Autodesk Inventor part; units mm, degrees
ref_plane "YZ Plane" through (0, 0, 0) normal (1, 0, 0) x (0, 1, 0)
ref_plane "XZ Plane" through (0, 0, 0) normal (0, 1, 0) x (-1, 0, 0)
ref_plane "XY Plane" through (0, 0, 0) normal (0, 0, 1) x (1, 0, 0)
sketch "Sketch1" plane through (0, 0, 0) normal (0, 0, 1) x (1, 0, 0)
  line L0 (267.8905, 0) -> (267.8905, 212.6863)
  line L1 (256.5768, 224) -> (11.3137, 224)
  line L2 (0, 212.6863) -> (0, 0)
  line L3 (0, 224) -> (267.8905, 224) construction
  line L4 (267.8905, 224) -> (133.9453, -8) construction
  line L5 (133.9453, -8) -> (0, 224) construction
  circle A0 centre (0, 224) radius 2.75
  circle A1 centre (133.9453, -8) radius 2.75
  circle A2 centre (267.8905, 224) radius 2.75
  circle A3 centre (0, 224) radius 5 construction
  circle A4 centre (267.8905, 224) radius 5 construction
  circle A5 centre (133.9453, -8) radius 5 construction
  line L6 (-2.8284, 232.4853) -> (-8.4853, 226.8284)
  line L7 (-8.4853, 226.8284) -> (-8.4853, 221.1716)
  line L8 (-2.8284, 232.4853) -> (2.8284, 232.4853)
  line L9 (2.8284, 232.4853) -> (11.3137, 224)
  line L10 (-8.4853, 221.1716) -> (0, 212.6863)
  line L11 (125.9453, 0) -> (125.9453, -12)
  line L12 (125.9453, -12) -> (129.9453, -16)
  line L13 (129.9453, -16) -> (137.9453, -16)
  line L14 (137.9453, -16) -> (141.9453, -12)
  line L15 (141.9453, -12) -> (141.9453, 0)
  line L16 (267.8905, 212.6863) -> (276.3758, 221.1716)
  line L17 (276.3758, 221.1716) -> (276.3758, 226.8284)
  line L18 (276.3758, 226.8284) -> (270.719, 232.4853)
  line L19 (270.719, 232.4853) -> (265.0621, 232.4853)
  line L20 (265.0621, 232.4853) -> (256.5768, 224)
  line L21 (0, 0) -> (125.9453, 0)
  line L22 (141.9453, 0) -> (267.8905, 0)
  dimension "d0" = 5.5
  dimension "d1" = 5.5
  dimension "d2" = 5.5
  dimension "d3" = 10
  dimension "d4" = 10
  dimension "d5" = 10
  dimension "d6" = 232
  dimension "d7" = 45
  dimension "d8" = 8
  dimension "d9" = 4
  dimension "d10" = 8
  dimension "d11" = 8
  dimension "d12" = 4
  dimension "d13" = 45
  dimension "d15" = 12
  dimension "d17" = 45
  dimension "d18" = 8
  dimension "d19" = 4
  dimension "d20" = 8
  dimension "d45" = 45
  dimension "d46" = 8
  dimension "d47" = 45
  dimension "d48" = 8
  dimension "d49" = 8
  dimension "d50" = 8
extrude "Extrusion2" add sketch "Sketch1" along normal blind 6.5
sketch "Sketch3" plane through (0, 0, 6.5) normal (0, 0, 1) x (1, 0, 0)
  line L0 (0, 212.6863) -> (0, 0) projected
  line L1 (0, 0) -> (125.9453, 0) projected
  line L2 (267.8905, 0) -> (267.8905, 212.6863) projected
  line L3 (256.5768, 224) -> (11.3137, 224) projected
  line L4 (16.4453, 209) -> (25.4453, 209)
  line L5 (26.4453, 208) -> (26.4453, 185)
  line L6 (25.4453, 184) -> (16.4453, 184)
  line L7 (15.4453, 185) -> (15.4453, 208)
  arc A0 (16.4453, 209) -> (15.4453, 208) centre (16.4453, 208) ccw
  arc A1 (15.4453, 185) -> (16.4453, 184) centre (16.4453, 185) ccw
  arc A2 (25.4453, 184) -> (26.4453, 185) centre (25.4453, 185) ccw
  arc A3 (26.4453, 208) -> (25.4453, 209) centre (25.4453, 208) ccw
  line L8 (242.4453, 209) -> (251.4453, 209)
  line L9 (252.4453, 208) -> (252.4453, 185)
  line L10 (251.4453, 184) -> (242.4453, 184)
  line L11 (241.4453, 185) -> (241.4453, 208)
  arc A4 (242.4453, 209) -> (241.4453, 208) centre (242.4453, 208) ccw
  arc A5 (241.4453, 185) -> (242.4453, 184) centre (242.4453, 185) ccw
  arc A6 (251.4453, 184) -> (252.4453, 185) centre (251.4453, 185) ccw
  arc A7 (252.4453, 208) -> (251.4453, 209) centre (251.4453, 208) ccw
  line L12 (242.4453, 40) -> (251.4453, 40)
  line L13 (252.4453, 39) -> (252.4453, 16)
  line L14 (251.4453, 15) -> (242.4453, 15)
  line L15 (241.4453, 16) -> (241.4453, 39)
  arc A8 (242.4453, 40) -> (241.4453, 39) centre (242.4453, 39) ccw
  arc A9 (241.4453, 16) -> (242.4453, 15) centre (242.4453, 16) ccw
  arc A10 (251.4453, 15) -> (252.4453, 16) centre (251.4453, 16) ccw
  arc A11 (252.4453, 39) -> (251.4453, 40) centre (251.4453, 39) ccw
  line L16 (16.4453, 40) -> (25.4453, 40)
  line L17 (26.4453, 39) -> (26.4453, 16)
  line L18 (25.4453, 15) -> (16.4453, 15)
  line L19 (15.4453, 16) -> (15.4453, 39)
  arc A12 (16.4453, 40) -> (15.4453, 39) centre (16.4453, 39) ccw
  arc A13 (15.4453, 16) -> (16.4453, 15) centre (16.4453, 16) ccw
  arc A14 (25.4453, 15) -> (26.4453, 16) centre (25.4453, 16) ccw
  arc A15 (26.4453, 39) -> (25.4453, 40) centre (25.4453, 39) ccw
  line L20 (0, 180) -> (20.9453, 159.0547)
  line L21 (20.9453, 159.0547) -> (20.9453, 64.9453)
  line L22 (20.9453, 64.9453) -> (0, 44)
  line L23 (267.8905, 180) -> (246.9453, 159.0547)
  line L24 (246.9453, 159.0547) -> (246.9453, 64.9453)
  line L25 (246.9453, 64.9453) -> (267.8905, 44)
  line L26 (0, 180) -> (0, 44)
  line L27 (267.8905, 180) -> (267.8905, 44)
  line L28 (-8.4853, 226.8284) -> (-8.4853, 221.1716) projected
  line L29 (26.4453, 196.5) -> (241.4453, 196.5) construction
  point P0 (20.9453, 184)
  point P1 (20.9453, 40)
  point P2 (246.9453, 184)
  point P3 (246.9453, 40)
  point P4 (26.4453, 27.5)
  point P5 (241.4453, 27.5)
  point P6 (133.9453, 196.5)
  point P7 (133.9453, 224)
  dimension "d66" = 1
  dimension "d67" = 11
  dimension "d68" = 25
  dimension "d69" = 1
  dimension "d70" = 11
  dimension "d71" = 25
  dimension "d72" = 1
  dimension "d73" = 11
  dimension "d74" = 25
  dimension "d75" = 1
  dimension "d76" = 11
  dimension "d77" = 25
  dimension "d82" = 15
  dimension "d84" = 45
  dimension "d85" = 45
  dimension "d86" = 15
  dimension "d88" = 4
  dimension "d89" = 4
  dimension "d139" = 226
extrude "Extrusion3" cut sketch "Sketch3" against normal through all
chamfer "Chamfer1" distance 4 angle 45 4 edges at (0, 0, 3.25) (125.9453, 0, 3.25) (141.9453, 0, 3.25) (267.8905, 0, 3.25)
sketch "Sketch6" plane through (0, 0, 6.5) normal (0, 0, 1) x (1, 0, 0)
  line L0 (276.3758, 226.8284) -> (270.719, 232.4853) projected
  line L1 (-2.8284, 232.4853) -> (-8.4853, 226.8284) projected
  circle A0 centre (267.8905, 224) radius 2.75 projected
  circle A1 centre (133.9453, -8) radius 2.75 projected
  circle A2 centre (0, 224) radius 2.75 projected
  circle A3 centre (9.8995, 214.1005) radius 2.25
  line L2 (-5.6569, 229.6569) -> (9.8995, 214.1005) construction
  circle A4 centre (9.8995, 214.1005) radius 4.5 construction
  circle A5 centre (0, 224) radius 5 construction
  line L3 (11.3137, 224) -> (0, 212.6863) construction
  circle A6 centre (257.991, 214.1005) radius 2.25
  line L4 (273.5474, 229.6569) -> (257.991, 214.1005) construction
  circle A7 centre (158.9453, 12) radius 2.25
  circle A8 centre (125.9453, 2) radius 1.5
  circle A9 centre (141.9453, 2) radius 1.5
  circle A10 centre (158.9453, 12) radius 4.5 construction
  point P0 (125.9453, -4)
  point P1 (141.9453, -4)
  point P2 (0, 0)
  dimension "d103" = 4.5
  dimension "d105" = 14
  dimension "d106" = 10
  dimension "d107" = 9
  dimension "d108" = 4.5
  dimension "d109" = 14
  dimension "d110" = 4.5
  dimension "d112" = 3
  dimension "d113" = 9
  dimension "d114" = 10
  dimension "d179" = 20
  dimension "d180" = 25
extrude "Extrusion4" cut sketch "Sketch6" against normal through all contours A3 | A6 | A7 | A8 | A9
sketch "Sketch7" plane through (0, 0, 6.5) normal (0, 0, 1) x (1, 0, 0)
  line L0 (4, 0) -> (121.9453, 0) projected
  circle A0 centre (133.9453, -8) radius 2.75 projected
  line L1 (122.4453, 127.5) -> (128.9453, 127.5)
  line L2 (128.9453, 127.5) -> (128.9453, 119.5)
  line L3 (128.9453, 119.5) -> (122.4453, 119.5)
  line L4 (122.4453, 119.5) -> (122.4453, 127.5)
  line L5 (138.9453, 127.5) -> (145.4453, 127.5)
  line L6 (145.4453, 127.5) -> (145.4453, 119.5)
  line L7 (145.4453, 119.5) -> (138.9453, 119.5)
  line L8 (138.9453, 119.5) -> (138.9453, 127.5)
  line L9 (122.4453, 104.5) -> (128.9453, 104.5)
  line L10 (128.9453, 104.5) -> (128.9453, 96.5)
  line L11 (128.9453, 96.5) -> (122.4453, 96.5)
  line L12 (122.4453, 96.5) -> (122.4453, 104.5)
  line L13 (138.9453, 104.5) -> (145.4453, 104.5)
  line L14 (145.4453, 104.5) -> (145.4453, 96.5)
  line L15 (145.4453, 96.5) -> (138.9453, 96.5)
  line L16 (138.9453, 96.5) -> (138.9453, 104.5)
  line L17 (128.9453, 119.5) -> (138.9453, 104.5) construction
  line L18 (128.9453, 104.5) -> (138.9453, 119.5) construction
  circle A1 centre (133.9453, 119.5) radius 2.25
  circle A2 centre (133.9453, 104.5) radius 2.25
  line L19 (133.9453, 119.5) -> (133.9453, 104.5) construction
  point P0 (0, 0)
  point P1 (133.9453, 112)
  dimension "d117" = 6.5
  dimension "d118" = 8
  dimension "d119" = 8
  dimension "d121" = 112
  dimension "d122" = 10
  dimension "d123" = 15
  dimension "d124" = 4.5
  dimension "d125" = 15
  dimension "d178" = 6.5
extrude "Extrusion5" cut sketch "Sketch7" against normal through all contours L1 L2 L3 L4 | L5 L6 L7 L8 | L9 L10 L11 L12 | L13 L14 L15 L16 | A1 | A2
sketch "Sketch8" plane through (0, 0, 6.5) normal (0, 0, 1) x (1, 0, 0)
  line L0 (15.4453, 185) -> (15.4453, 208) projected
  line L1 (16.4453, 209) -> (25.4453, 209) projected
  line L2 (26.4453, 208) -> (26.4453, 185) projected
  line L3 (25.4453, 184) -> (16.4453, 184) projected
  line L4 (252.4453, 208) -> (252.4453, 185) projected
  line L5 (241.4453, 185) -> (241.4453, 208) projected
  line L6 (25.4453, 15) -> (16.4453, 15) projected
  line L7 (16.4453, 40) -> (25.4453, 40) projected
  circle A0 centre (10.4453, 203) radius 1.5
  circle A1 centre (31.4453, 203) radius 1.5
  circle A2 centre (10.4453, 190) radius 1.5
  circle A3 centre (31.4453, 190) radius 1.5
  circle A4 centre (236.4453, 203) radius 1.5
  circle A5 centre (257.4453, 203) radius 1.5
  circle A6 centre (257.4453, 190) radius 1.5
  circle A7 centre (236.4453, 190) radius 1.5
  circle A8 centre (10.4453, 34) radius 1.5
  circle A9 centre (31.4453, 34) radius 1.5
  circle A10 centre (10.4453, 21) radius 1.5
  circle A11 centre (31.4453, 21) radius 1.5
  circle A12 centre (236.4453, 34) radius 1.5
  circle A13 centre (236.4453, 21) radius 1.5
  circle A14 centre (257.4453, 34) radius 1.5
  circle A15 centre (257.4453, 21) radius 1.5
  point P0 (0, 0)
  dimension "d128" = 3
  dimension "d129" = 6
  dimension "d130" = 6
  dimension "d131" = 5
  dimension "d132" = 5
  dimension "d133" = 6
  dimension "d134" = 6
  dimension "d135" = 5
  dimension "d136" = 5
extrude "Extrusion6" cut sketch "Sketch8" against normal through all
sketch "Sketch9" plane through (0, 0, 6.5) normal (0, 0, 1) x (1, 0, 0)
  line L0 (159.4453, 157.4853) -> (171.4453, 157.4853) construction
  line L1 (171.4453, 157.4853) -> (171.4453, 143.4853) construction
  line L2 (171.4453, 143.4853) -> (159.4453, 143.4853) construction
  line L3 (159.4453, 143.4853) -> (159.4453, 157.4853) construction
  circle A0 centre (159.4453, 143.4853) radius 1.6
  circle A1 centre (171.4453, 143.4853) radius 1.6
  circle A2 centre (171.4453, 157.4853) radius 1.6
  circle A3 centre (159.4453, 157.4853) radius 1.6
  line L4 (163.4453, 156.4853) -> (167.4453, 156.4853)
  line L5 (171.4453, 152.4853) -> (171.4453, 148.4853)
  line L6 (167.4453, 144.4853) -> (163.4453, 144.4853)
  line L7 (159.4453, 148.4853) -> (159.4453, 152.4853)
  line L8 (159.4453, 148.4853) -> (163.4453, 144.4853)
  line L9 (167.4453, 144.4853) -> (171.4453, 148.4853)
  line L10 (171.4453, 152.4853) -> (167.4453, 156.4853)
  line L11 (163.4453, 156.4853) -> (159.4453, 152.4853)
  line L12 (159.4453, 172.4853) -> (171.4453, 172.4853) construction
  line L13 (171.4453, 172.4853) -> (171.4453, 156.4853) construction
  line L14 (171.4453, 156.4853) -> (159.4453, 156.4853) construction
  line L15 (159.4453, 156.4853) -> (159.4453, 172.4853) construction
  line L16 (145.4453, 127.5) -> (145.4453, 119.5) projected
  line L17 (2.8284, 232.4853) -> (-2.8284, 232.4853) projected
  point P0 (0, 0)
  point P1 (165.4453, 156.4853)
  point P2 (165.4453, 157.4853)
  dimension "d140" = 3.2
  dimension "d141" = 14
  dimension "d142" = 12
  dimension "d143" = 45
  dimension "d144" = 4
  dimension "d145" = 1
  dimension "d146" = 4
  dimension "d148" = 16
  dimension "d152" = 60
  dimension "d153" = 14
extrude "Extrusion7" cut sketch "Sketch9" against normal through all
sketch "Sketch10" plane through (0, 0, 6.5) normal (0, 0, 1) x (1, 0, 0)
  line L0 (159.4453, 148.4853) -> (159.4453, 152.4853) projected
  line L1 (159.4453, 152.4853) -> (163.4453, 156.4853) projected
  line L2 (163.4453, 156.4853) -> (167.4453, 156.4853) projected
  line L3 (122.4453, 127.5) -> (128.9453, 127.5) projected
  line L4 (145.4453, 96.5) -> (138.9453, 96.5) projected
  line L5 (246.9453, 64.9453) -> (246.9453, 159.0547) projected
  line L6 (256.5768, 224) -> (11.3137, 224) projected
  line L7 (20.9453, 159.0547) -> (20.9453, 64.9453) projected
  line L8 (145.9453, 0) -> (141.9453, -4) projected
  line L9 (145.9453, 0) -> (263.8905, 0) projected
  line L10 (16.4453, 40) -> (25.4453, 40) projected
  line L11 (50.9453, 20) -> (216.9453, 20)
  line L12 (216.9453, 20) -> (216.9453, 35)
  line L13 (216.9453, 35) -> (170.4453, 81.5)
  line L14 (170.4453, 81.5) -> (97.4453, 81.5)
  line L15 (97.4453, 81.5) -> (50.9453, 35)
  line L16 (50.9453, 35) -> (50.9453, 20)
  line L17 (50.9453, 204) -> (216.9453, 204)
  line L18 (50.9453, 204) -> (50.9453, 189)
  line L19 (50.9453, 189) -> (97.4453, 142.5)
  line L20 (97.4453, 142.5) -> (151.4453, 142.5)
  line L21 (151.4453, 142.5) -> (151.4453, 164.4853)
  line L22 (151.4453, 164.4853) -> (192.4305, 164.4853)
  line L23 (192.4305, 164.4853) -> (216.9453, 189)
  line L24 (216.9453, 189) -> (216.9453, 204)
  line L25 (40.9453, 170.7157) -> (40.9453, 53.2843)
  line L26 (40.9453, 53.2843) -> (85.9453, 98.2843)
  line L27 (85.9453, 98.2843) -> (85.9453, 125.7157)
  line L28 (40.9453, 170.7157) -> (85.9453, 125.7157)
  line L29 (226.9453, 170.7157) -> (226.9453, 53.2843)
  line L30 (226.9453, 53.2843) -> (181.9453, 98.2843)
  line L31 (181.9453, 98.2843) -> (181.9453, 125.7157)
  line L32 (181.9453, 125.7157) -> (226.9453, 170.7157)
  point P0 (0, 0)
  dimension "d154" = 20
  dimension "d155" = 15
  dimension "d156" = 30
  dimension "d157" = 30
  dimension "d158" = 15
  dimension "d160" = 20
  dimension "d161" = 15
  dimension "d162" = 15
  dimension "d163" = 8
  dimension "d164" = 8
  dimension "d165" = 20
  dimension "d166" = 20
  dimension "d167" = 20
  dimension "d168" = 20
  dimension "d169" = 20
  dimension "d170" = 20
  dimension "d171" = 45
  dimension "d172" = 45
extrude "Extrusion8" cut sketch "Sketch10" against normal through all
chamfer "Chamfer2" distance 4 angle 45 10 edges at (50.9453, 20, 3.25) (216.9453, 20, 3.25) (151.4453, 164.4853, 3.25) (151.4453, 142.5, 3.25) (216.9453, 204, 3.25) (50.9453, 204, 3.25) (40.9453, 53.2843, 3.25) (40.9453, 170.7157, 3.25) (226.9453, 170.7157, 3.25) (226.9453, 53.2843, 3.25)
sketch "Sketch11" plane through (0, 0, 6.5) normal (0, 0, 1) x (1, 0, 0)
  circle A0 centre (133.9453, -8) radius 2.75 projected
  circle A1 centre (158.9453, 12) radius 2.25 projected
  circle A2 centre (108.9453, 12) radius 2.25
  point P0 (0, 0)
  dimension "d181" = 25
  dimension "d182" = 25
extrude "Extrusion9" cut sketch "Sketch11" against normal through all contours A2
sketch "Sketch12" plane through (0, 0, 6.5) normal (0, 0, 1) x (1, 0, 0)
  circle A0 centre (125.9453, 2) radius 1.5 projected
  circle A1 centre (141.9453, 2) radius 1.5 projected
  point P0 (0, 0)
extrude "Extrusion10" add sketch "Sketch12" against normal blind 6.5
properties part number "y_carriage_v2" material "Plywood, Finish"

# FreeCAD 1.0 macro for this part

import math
import FreeCAD as App
import Part
import Sketcher

V = App.Vector
Q = App.Units.Quantity


def edges_at(feature, points):
    """Names of the edges that pass closest to the given points."""
    edges = feature.Shape.Edges
    near = lambda p: min(range(len(edges)), key=lambda i: edges[i].distToShape(Part.Vertex(*p))[0])
    return sorted({f"Edge{near(p) + 1}" for p in points})


def add_polygon(sketch, points):
    """Adds a closed chain of lines whose ends are joined by coincident constraints."""
    first, n = sketch.GeometryCount, len(points)
    for a, b in zip(points, points[1:] + points[:1]):
        sketch.addGeometry(Part.LineSegment(App.Vector(*a, 0), App.Vector(*b, 0)), False)
    for i in range(n):
        sketch.addConstraint(Sketcher.Constraint("Coincident", first + i, 2, first + (i + 1) % n, 1))

doc = App.newDocument("Part")
body = doc.addObject("PartDesign::Body", "Body")

# Sketch on XY plane
sketch1 = body.newObject("Sketcher::SketchObject", "Sketch")
sketch1.AttachmentSupport = (doc.getObject("XY_Plane"), [""])
sketch1.MapMode = "FlatFace"
add_polygon(sketch1, [(141.9453, 0), (267.8905, 0), (267.8905, 212.6863), (276.3758, 221.1716), (276.3758, 226.8284), (270.719, 232.4853), (265.0621, 232.4853), (256.5768, 224), (11.3137, 224), (2.8284, 232.4853), (-2.8284, 232.4853), (-8.4853, 226.8284), (-8.4853, 221.1716), (0, 212.6863), (0, 0), (125.9453, 0), (125.9453, -12), (129.9453, -16), (137.9453, -16), (141.9453, -12)])  # lines 0-19
sketch1.addGeometry(Part.Circle(V(133.9453, -8, 0), V(0, 0, 1), 2.75), False)  # 20
sketch1.addGeometry(Part.Circle(V(0, 224, 0), V(0, 0, 1), 2.75), False)  # 21
sketch1.addGeometry(Part.Circle(V(267.8905, 224, 0), V(0, 0, 1), 2.75), False)  # 22
sketch1.addConstraint([
    Sketcher.Constraint("Horizontal", 0),
    Sketcher.Constraint("Vertical", 1),
    Sketcher.Constraint("Vertical", 3),
    Sketcher.Constraint("Horizontal", 5),
    Sketcher.Constraint("Horizontal", 7),
    Sketcher.Constraint("Horizontal", 9),
    Sketcher.Constraint("Vertical", 11),
    Sketcher.Constraint("Vertical", 13),
    Sketcher.Constraint("Horizontal", 14),
    Sketcher.Constraint("Vertical", 15),
    Sketcher.Constraint("Horizontal", 17),
    Sketcher.Constraint("Vertical", 19),
    Sketcher.Constraint("Coincident", 13, 2, -1, 1),
    Sketcher.Constraint("Equal", 20, 21),
    Sketcher.Constraint("Equal", 21, 22),
    Sketcher.Constraint("PointOnObject", 21, 3, -2),
    Sketcher.Constraint("PointOnObject", 0, 2, -1),
    Sketcher.Constraint("Perpendicular", 2, 4),
    Sketcher.Constraint("Perpendicular", 4, 6),
    Sketcher.Constraint("Perpendicular", 6, 8),
    Sketcher.Constraint("Perpendicular", 8, 10),
    Sketcher.Constraint("Perpendicular", 10, 12),
    Sketcher.Constraint("Parallel", 12, 16),
    Sketcher.Constraint("Perpendicular", 16, 18),
    Sketcher.Constraint("Horizontal", 21, 3, 22, 3),
    Sketcher.Constraint("Horizontal", 22, 3, 6, 2),
    Sketcher.Constraint("Horizontal", 5, 2, 8, 2),
    Sketcher.Constraint("Horizontal", 3, 2, 10, 2),
    Sketcher.Constraint("Horizontal", 2, 2, 11, 2),
    Sketcher.Constraint("Horizontal", 1, 2, 12, 2),
    Sketcher.Constraint("Horizontal", 15, 2, 18, 2),
    Sketcher.Constraint("Vertical", 22, 3, 0, 2),
    Sketcher.Constraint("Equal", 5, 9),
    Sketcher.Constraint("Equal", 0, 14),
    Sketcher.Constraint("Equal", 9, 3),
    Sketcher.Constraint("Equal", 2, 6),
    Sketcher.Constraint("Equal", 6, 8),
    Sketcher.Constraint("Diameter", 20, Q("5.5 mm")),
    Sketcher.Constraint("DistanceX", 17, 1, 17, 2, Q("8 mm")),
    Sketcher.Constraint("DistanceY", 15, 2, 15, 1, Q("12 mm")),
    Sketcher.Constraint("Distance", 2, Q("12 mm")),
    Sketcher.Constraint("Distance", 4, Q("8 mm")),
    Sketcher.Constraint("DistanceY", 20, 3, -1, 1, Q("8 mm")),
    Sketcher.Constraint("DistanceY", 20, 3, 21, 3, Q("232 mm")),
    Sketcher.Constraint("DistanceX", 14, 2, 20, 3, Q("8 mm")),
    Sketcher.Constraint("DistanceX", 15, 2, 16, 2, Q("4 mm")),
    Sketcher.Constraint("DistanceX", 5, 2, 5, 1, Q("5.657 mm")),
    Sketcher.Constraint("DistanceX", 7, 2, 7, 1, Q("245.263 mm")),
])
pad1 = body.newObject("PartDesign::Pad", "Pad")
pad1.Profile = sketch1
pad1.Length = 6.5

# Sketch on XY plane
sketch2 = body.newObject("Sketcher::SketchObject", "Sketch001")
sketch2.AttachmentSupport = (doc.getObject("XY_Plane"), [""])
sketch2.MapMode = "FlatFace"
sketch2.AttachmentOffset = App.Placement(V(0, 0, 6.5), App.Rotation())
add_polygon(sketch2, [(20.9453, 159.0547), (0, 180), (0, 44), (20.9453, 64.9453)])  # lines 0-3
add_polygon(sketch2, [(246.9453, 64.9453), (267.8905, 44), (267.8905, 180), (246.9453, 159.0547)])  # lines 4-7
sketch2.addGeometry(Part.LineSegment(V(25.4453, 209, 0), V(16.4453, 209, 0)), False)  # 8
sketch2.addGeometry(Part.ArcOfCircle(Part.Circle(V(16.4453, 208, 0), V(0, 0, 1), 1), math.radians(90), math.radians(180)), False)  # 9
sketch2.addGeometry(Part.LineSegment(V(15.4453, 208, 0), V(15.4453, 185, 0)), False)  # 10
sketch2.addGeometry(Part.ArcOfCircle(Part.Circle(V(16.4453, 185, 0), V(0, 0, 1), 1), math.radians(180), math.radians(270)), False)  # 11
sketch2.addGeometry(Part.LineSegment(V(16.4453, 184, 0), V(25.4453, 184, 0)), False)  # 12
sketch2.addGeometry(Part.ArcOfCircle(Part.Circle(V(25.4453, 185, 0), V(0, 0, 1), 1), math.radians(-90), math.radians(0)), False)  # 13
sketch2.addGeometry(Part.LineSegment(V(26.4453, 185, 0), V(26.4453, 208, 0)), False)  # 14
sketch2.addGeometry(Part.ArcOfCircle(Part.Circle(V(25.4453, 208, 0), V(0, 0, 1), 1), math.radians(0), math.radians(90)), False)  # 15
sketch2.addGeometry(Part.LineSegment(V(251.4453, 209, 0), V(242.4453, 209, 0)), False)  # 16
sketch2.addGeometry(Part.ArcOfCircle(Part.Circle(V(242.4453, 208, 0), V(0, 0, 1), 1), math.radians(90), math.radians(180)), False)  # 17
sketch2.addGeometry(Part.LineSegment(V(241.4453, 208, 0), V(241.4453, 185, 0)), False)  # 18
sketch2.addGeometry(Part.ArcOfCircle(Part.Circle(V(242.4453, 185, 0), V(0, 0, 1), 1), math.radians(180), math.radians(270)), False)  # 19
sketch2.addGeometry(Part.LineSegment(V(242.4453, 184, 0), V(251.4453, 184, 0)), False)  # 20
sketch2.addGeometry(Part.ArcOfCircle(Part.Circle(V(251.4453, 185, 0), V(0, 0, 1), 1), math.radians(-90), math.radians(0)), False)  # 21
sketch2.addGeometry(Part.LineSegment(V(252.4453, 185, 0), V(252.4453, 208, 0)), False)  # 22
sketch2.addGeometry(Part.ArcOfCircle(Part.Circle(V(251.4453, 208, 0), V(0, 0, 1), 1), math.radians(0), math.radians(90)), False)  # 23
sketch2.addGeometry(Part.LineSegment(V(251.4453, 40, 0), V(242.4453, 40, 0)), False)  # 24
sketch2.addGeometry(Part.ArcOfCircle(Part.Circle(V(242.4453, 39, 0), V(0, 0, 1), 1), math.radians(90), math.radians(180)), False)  # 25
sketch2.addGeometry(Part.LineSegment(V(241.4453, 39, 0), V(241.4453, 16, 0)), False)  # 26
sketch2.addGeometry(Part.ArcOfCircle(Part.Circle(V(242.4453, 16, 0), V(0, 0, 1), 1), math.radians(180), math.radians(270)), False)  # 27
sketch2.addGeometry(Part.LineSegment(V(242.4453, 15, 0), V(251.4453, 15, 0)), False)  # 28
sketch2.addGeometry(Part.ArcOfCircle(Part.Circle(V(251.4453, 16, 0), V(0, 0, 1), 1), math.radians(-90), math.radians(0)), False)  # 29
sketch2.addGeometry(Part.LineSegment(V(252.4453, 16, 0), V(252.4453, 39, 0)), False)  # 30
sketch2.addGeometry(Part.ArcOfCircle(Part.Circle(V(251.4453, 39, 0), V(0, 0, 1), 1), math.radians(0), math.radians(90)), False)  # 31
sketch2.addGeometry(Part.LineSegment(V(25.4453, 40, 0), V(16.4453, 40, 0)), False)  # 32
sketch2.addGeometry(Part.ArcOfCircle(Part.Circle(V(16.4453, 39, 0), V(0, 0, 1), 1), math.radians(90), math.radians(180)), False)  # 33
sketch2.addGeometry(Part.LineSegment(V(15.4453, 39, 0), V(15.4453, 16, 0)), False)  # 34
sketch2.addGeometry(Part.ArcOfCircle(Part.Circle(V(16.4453, 16, 0), V(0, 0, 1), 1), math.radians(180), math.radians(270)), False)  # 35
sketch2.addGeometry(Part.LineSegment(V(16.4453, 15, 0), V(25.4453, 15, 0)), False)  # 36
sketch2.addGeometry(Part.ArcOfCircle(Part.Circle(V(25.4453, 16, 0), V(0, 0, 1), 1), math.radians(-90), math.radians(0)), False)  # 37
sketch2.addGeometry(Part.LineSegment(V(26.4453, 16, 0), V(26.4453, 39, 0)), False)  # 38
sketch2.addGeometry(Part.ArcOfCircle(Part.Circle(V(25.4453, 39, 0), V(0, 0, 1), 1), math.radians(0), math.radians(90)), False)  # 39
sketch2.addConstraint([
    Sketcher.Constraint("Tangent", 8, 2, 9, 1),
    Sketcher.Constraint("Tangent", 9, 2, 10, 1),
    Sketcher.Constraint("Tangent", 10, 2, 11, 1),
    Sketcher.Constraint("Tangent", 11, 2, 12, 1),
    Sketcher.Constraint("Tangent", 12, 2, 13, 1),
    Sketcher.Constraint("Tangent", 13, 2, 14, 1),
    Sketcher.Constraint("Tangent", 14, 2, 15, 1),
    Sketcher.Constraint("Tangent", 15, 2, 8, 1),
    Sketcher.Constraint("Tangent", 16, 2, 17, 1),
    Sketcher.Constraint("Tangent", 17, 2, 18, 1),
    Sketcher.Constraint("Tangent", 18, 2, 19, 1),
    Sketcher.Constraint("Tangent", 19, 2, 20, 1),
    Sketcher.Constraint("Tangent", 20, 2, 21, 1),
    Sketcher.Constraint("Tangent", 21, 2, 22, 1),
    Sketcher.Constraint("Tangent", 22, 2, 23, 1),
    Sketcher.Constraint("Tangent", 23, 2, 16, 1),
    Sketcher.Constraint("Tangent", 24, 2, 25, 1),
    Sketcher.Constraint("Tangent", 25, 2, 26, 1),
    Sketcher.Constraint("Tangent", 26, 2, 27, 1),
    Sketcher.Constraint("Tangent", 27, 2, 28, 1),
    Sketcher.Constraint("Tangent", 28, 2, 29, 1),
    Sketcher.Constraint("Tangent", 29, 2, 30, 1),
    Sketcher.Constraint("Tangent", 30, 2, 31, 1),
    Sketcher.Constraint("Tangent", 31, 2, 24, 1),
    Sketcher.Constraint("Tangent", 32, 2, 33, 1),
    Sketcher.Constraint("Tangent", 33, 2, 34, 1),
    Sketcher.Constraint("Tangent", 34, 2, 35, 1),
    Sketcher.Constraint("Tangent", 35, 2, 36, 1),
    Sketcher.Constraint("Tangent", 36, 2, 37, 1),
    Sketcher.Constraint("Tangent", 37, 2, 38, 1),
    Sketcher.Constraint("Tangent", 38, 2, 39, 1),
    Sketcher.Constraint("Tangent", 39, 2, 32, 1),
    Sketcher.Constraint("Vertical", 1),
    Sketcher.Constraint("Vertical", 3),
    Sketcher.Constraint("Vertical", 5),
    Sketcher.Constraint("Vertical", 7),
    Sketcher.Constraint("Horizontal", 8),
    Sketcher.Constraint("Vertical", 10),
    Sketcher.Constraint("Horizontal", 12),
    Sketcher.Constraint("Vertical", 14),
    Sketcher.Constraint("Horizontal", 16),
    Sketcher.Constraint("Vertical", 18),
    Sketcher.Constraint("Horizontal", 20),
    Sketcher.Constraint("Vertical", 22),
    Sketcher.Constraint("Horizontal", 24),
    Sketcher.Constraint("Vertical", 26),
    Sketcher.Constraint("Horizontal", 28),
    Sketcher.Constraint("Vertical", 30),
    Sketcher.Constraint("Horizontal", 32),
    Sketcher.Constraint("Vertical", 34),
    Sketcher.Constraint("Horizontal", 36),
    Sketcher.Constraint("Vertical", 38),
    Sketcher.Constraint("Equal", 9, 11),
    Sketcher.Constraint("Equal", 11, 13),
    Sketcher.Constraint("Equal", 13, 15),
    Sketcher.Constraint("Equal", 15, 17),
    Sketcher.Constraint("Equal", 17, 19),
    Sketcher.Constraint("Equal", 19, 21),
    Sketcher.Constraint("Equal", 21, 23),
    Sketcher.Constraint("Equal", 23, 25),
    Sketcher.Constraint("Equal", 25, 27),
    Sketcher.Constraint("Equal", 27, 29),
    Sketcher.Constraint("Equal", 29, 31),
    Sketcher.Constraint("Equal", 31, 33),
    Sketcher.Constraint("Equal", 33, 35),
    Sketcher.Constraint("Equal", 35, 37),
    Sketcher.Constraint("Equal", 37, 39),
    Sketcher.Constraint("PointOnObject", 0, 2, -2),
    Sketcher.Constraint("Perpendicular", 0, 2),
    Sketcher.Constraint("Perpendicular", 2, 4),
    Sketcher.Constraint("Perpendicular", 4, 6),
    Sketcher.Constraint("Horizontal", 15, 3, 17, 3),
    Sketcher.Constraint("Horizontal", 13, 3, 19, 3),
    Sketcher.Constraint("Horizontal", 31, 3, 33, 3),
    Sketcher.Constraint("Horizontal", 29, 3, 35, 3),
    Sketcher.Constraint("Horizontal", 1, 2, 4, 2),
    Sketcher.Constraint("Horizontal", 0, 2, 5, 2),
    Sketcher.Constraint("Horizontal", 3, 2, 6, 2),
    Sketcher.Constraint("Horizontal", 2, 2, 7, 2),
    Sketcher.Constraint("Vertical", 19, 3, 25, 3),
    Sketcher.Constraint("Vertical", 23, 3, 29, 3),
    Sketcher.Constraint("Vertical", 11, 3, 33, 3),
    Sketcher.Constraint("Vertical", 15, 3, 37, 3),
    Sketcher.Constraint("Equal", 12, 16),
    Sketcher.Constraint("Equal", 22, 26),
    Sketcher.Constraint("Radius", 9, Q("1 mm")),
    Sketcher.Constraint("DistanceY", -1, 1, 27, 2, Q("15 mm")),
    Sketcher.Constraint("DistanceX", 9, 3, 17, 3, Q("226 mm")),
    Sketcher.Constraint("DistanceY", 0, 2, 11, 2, Q("4 mm")),
    Sketcher.Constraint("DistanceX", 10, 2, 13, 2, Q("11 mm")),
    Sketcher.Constraint("DistanceY", 32, 2, 1, 2, Q("4 mm")),
    Sketcher.Constraint("DistanceY", 1, 2, 1, 1, Q("136 mm")),
    Sketcher.Constraint("DistanceY", 10, 2, 10, 1, Q("23 mm")),
    Sketcher.Constraint("DistanceX", 33, 3, 2, 2, Q("4.5 mm")),
    Sketcher.Constraint("DistanceX", 19, 3, 6, 2, Q("4.5 mm")),
    Sketcher.Constraint("Distance", 4, Q("29.621 mm")),
])
pocket1 = body.newObject("PartDesign::Pocket", "Pocket")
pocket1.Profile = sketch2
pocket1.Type = "ThroughAll"
doc.recompute()

chamfer = body.newObject("PartDesign::Chamfer", "Chamfer")
chamfer.Base = (pocket1, edges_at(pocket1, [
    (0, 0, 3.25),
    (125.945, 0, 3.25),
    (141.945, 0, 3.25),
    (267.89, 0, 3.25),
]))
chamfer.Size = 4

# Sketch on XY plane
sketch3 = body.newObject("Sketcher::SketchObject", "Sketch002")
sketch3.AttachmentSupport = (doc.getObject("XY_Plane"), [""])
sketch3.MapMode = "FlatFace"
sketch3.AttachmentOffset = App.Placement(V(0, 0, 6.5), App.Rotation())
sketch3.addGeometry([
    Part.Circle(V(9.8995, 214.1005, 0), V(0, 0, 1), 2.25),  # 0
    Part.Circle(V(257.991, 214.1005, 0), V(0, 0, 1), 2.25),  # 1
    Part.Circle(V(158.9453, 12, 0), V(0, 0, 1), 2.25),  # 2
    Part.Circle(V(125.9453, 2, 0), V(0, 0, 1), 1.5),  # 3
    Part.Circle(V(141.9453, 2, 0), V(0, 0, 1), 1.5),  # 4
], False)
sketch3.addConstraint([
    Sketcher.Constraint("Equal", 0, 1),
    Sketcher.Constraint("Equal", 1, 2),
    Sketcher.Constraint("Equal", 3, 4),
    Sketcher.Constraint("Horizontal", 0, 3, 1, 3),
    Sketcher.Constraint("Horizontal", 3, 3, 4, 3),
    Sketcher.Constraint("Diameter", 3, Q("3 mm")),
    Sketcher.Constraint("Diameter", 0, Q("4.5 mm")),
    Sketcher.Constraint("DistanceY", 3, 3, 2, 3, Q("10 mm")),
    Sketcher.Constraint("DistanceY", -1, 1, 2, 3, Q("12 mm")),
    Sketcher.Constraint("DistanceX", 3, 3, 2, 3, Q("33 mm")),
    Sketcher.Constraint("DistanceX", 3, 3, 4, 3, Q("16 mm")),
    Sketcher.Constraint("DistanceX", -1, 1, 1, 3, Q("257.991 mm")),
    Sketcher.Constraint("DistanceX", -1, 1, 0, 3, Q("9.8995 mm")),
    Sketcher.Constraint("DistanceY", -1, 1, 0, 3, Q("214.1005 mm")),
    Sketcher.Constraint("DistanceX", -1, 1, 2, 3, Q("158.9453 mm")),
])
pocket2 = body.newObject("PartDesign::Pocket", "Pocket001")
pocket2.Profile = sketch3
pocket2.Type = "ThroughAll"

# Sketch on XY plane
sketch4 = body.newObject("Sketcher::SketchObject", "Sketch003")
sketch4.AttachmentSupport = (doc.getObject("XY_Plane"), [""])
sketch4.MapMode = "FlatFace"
sketch4.AttachmentOffset = App.Placement(V(0, 0, 6.5), App.Rotation())
add_polygon(sketch4, [(128.9453, 127.5), (122.4453, 127.5), (122.4453, 119.5), (128.9453, 119.5)])  # lines 0-3
add_polygon(sketch4, [(145.4453, 127.5), (138.9453, 127.5), (138.9453, 119.5), (145.4453, 119.5)])  # lines 4-7
add_polygon(sketch4, [(128.9453, 104.5), (122.4453, 104.5), (122.4453, 96.5), (128.9453, 96.5)])  # lines 8-11
add_polygon(sketch4, [(145.4453, 104.5), (138.9453, 104.5), (138.9453, 96.5), (145.4453, 96.5)])  # lines 12-15
sketch4.addGeometry(Part.Circle(V(133.9453, 119.5, 0), V(0, 0, 1), 2.25), False)  # 16
sketch4.addGeometry(Part.Circle(V(133.9453, 104.5, 0), V(0, 0, 1), 2.25), False)  # 17
sketch4.addConstraint([
    Sketcher.Constraint("Horizontal", 0),
    Sketcher.Constraint("Vertical", 1),
    Sketcher.Constraint("Horizontal", 2),
    Sketcher.Constraint("Vertical", 3),
    Sketcher.Constraint("Horizontal", 4),
    Sketcher.Constraint("Vertical", 5),
    Sketcher.Constraint("Horizontal", 6),
    Sketcher.Constraint("Vertical", 7),
    Sketcher.Constraint("Horizontal", 8),
    Sketcher.Constraint("Vertical", 9),
    Sketcher.Constraint("Horizontal", 10),
    Sketcher.Constraint("Vertical", 11),
    Sketcher.Constraint("Horizontal", 12),
    Sketcher.Constraint("Vertical", 13),
    Sketcher.Constraint("Horizontal", 14),
    Sketcher.Constraint("Vertical", 15),
    Sketcher.Constraint("Equal", 16, 17),
    Sketcher.Constraint("Horizontal", 16, 3, 1, 2),
    Sketcher.Constraint("Horizontal", 3, 2, 4, 2),
    Sketcher.Constraint("Horizontal", 2, 2, 5, 2),
    Sketcher.Constraint("Horizontal", 17, 3, 8, 2),
    Sketcher.Constraint("Horizontal", 11, 2, 12, 2),
    Sketcher.Constraint("Horizontal", 10, 2, 13, 2),
    Sketcher.Constraint("Vertical", 16, 3, 17, 3),
    Sketcher.Constraint("Vertical", 1, 2, 8, 2),
    Sketcher.Constraint("Vertical", 3, 2, 10, 2),
    Sketcher.Constraint("Vertical", 5, 2, 12, 2),
    Sketcher.Constraint("Vertical", 7, 2, 14, 2),
    Sketcher.Constraint("Equal", 2, 4),
    Sketcher.Constraint("Equal", 7, 9),
    Sketcher.Constraint("Diameter", 16, Q("4.5 mm")),
    Sketcher.Constraint("DistanceY", 1, 2, 1, 1, Q("8 mm")),
    Sketcher.Constraint("DistanceX", 0, 2, 0, 1, Q("6.5 mm")),
    Sketcher.Constraint("DistanceY", 17, 3, 16, 3, Q("15 mm")),
    Sketcher.Constraint("DistanceX", 3, 2, 4, 2, Q("10 mm")),
    Sketcher.Constraint("DistanceX", 2, 2, 16, 3, Q("5 mm")),
    Sketcher.Constraint("DistanceY", -1, 1, 16, 3, Q("119.5 mm")),
    Sketcher.Constraint("DistanceX", -1, 1, 16, 3, Q("133.9453 mm")),
])
pocket3 = body.newObject("PartDesign::Pocket", "Pocket002")
pocket3.Profile = sketch4
pocket3.Type = "ThroughAll"

# Sketch on XY plane
sketch5 = body.newObject("Sketcher::SketchObject", "Sketch004")
sketch5.AttachmentSupport = (doc.getObject("XY_Plane"), [""])
sketch5.MapMode = "FlatFace"
sketch5.AttachmentOffset = App.Placement(V(0, 0, 6.5), App.Rotation())
sketch5.addGeometry([
    Part.Circle(V(10.4453, 203, 0), V(0, 0, 1), 1.5),  # 0
    Part.Circle(V(31.4453, 203, 0), V(0, 0, 1), 1.5),  # 1
    Part.Circle(V(10.4453, 190, 0), V(0, 0, 1), 1.5),  # 2
    Part.Circle(V(31.4453, 190, 0), V(0, 0, 1), 1.5),  # 3
    Part.Circle(V(236.4453, 203, 0), V(0, 0, 1), 1.5),  # 4
    Part.Circle(V(257.4453, 203, 0), V(0, 0, 1), 1.5),  # 5
    Part.Circle(V(257.4453, 190, 0), V(0, 0, 1), 1.5),  # 6
    Part.Circle(V(236.4453, 190, 0), V(0, 0, 1), 1.5),  # 7
    Part.Circle(V(10.4453, 34, 0), V(0, 0, 1), 1.5),  # 8
    Part.Circle(V(31.4453, 34, 0), V(0, 0, 1), 1.5),  # 9
    Part.Circle(V(10.4453, 21, 0), V(0, 0, 1), 1.5),  # 10
    Part.Circle(V(31.4453, 21, 0), V(0, 0, 1), 1.5),  # 11
    Part.Circle(V(236.4453, 34, 0), V(0, 0, 1), 1.5),  # 12
    Part.Circle(V(236.4453, 21, 0), V(0, 0, 1), 1.5),  # 13
    Part.Circle(V(257.4453, 34, 0), V(0, 0, 1), 1.5),  # 14
    Part.Circle(V(257.4453, 21, 0), V(0, 0, 1), 1.5),  # 15
], False)
sketch5.addConstraint([
    Sketcher.Constraint("Equal", 0, 1),
    Sketcher.Constraint("Equal", 1, 2),
    Sketcher.Constraint("Equal", 2, 3),
    Sketcher.Constraint("Equal", 3, 4),
    Sketcher.Constraint("Equal", 4, 5),
    Sketcher.Constraint("Equal", 5, 6),
    Sketcher.Constraint("Equal", 6, 7),
    Sketcher.Constraint("Equal", 7, 8),
    Sketcher.Constraint("Equal", 8, 9),
    Sketcher.Constraint("Equal", 9, 10),
    Sketcher.Constraint("Equal", 10, 11),
    Sketcher.Constraint("Equal", 11, 12),
    Sketcher.Constraint("Equal", 12, 13),
    Sketcher.Constraint("Equal", 13, 14),
    Sketcher.Constraint("Equal", 14, 15),
    Sketcher.Constraint("Horizontal", 0, 3, 1, 3),
    Sketcher.Constraint("Horizontal", 2, 3, 3, 3),
    Sketcher.Constraint("Horizontal", 1, 3, 4, 3),
    Sketcher.Constraint("Horizontal", 4, 3, 5, 3),
    Sketcher.Constraint("Horizontal", 3, 3, 6, 3),
    Sketcher.Constraint("Horizontal", 6, 3, 7, 3),
    Sketcher.Constraint("Horizontal", 8, 3, 9, 3),
    Sketcher.Constraint("Horizontal", 10, 3, 11, 3),
    Sketcher.Constraint("Horizontal", 9, 3, 12, 3),
    Sketcher.Constraint("Horizontal", 11, 3, 13, 3),
    Sketcher.Constraint("Horizontal", 12, 3, 14, 3),
    Sketcher.Constraint("Horizontal", 13, 3, 15, 3),
    Sketcher.Constraint("Vertical", 0, 3, 2, 3),
    Sketcher.Constraint("Vertical", 1, 3, 3, 3),
    Sketcher.Constraint("Vertical", 5, 3, 6, 3),
    Sketcher.Constraint("Vertical", 4, 3, 7, 3),
    Sketcher.Constraint("Vertical", 2, 3, 8, 3),
    Sketcher.Constraint("Vertical", 3, 3, 9, 3),
    Sketcher.Constraint("Vertical", 8, 3, 10, 3),
    Sketcher.Constraint("Vertical", 9, 3, 11, 3),
    Sketcher.Constraint("Vertical", 7, 3, 12, 3),
    Sketcher.Constraint("Vertical", 12, 3, 13, 3),
    Sketcher.Constraint("Vertical", 6, 3, 14, 3),
    Sketcher.Constraint("Vertical", 14, 3, 15, 3),
    Sketcher.Constraint("Diameter", 0, Q("3 mm")),
    Sketcher.Constraint("DistanceY", -1, 1, 0, 3, Q("203 mm")),
    Sketcher.Constraint("DistanceY", -1, 1, 2, 3, Q("190 mm")),
    Sketcher.Constraint("DistanceY", -1, 1, 8, 3, Q("34 mm")),
    Sketcher.Constraint("DistanceY", -1, 1, 10, 3, Q("21 mm")),
    Sketcher.Constraint("DistanceX", 0, 3, 1, 3, Q("21 mm")),
    Sketcher.Constraint("DistanceX", 1, 3, 4, 3, Q("205 mm")),
    Sketcher.Constraint("DistanceX", 4, 3, 5, 3, Q("21 mm")),
    Sketcher.Constraint("DistanceX", -1, 1, 0, 3, Q("10.4453 mm")),
])
pocket4 = body.newObject("PartDesign::Pocket", "Pocket003")
pocket4.Profile = sketch5
pocket4.Type = "ThroughAll"

# Sketch on XY plane
sketch6 = body.newObject("Sketcher::SketchObject", "Sketch005")
sketch6.AttachmentSupport = (doc.getObject("XY_Plane"), [""])
sketch6.MapMode = "FlatFace"
sketch6.AttachmentOffset = App.Placement(V(0, 0, 6.5), App.Rotation())
sketch6.addGeometry(Part.Circle(V(159.4453, 143.4853, 0), V(0, 0, 1), 1.6), False)  # 0
sketch6.addGeometry(Part.Circle(V(171.4453, 143.4853, 0), V(0, 0, 1), 1.6), False)  # 1
sketch6.addGeometry(Part.Circle(V(171.4453, 157.4853, 0), V(0, 0, 1), 1.6), False)  # 2
sketch6.addGeometry(Part.Circle(V(159.4453, 157.4853, 0), V(0, 0, 1), 1.6), False)  # 3
add_polygon(sketch6, [(167.4453, 156.4853), (163.4453, 156.4853), (159.4453, 152.4853), (159.4453, 148.4853), (163.4453, 144.4853), (167.4453, 144.4853), (171.4453, 148.4853), (171.4453, 152.4853)])  # lines 4-11
sketch6.addConstraint([
    Sketcher.Constraint("Horizontal", 4),
    Sketcher.Constraint("Vertical", 6),
    Sketcher.Constraint("Horizontal", 8),
    Sketcher.Constraint("Vertical", 10),
    Sketcher.Constraint("Equal", 0, 1),
    Sketcher.Constraint("Equal", 1, 2),
    Sketcher.Constraint("Equal", 2, 3),
    Sketcher.Constraint("Perpendicular", 5, 7),
    Sketcher.Constraint("Perpendicular", 7, 9),
    Sketcher.Constraint("Perpendicular", 9, 11),
    Sketcher.Constraint("Horizontal", 0, 3, 1, 3),
    Sketcher.Constraint("Horizontal", 2, 3, 3, 3),
    Sketcher.Constraint("Horizontal", 6, 2, 9, 2),
    Sketcher.Constraint("Horizontal", 5, 2, 10, 2),
    Sketcher.Constraint("Vertical", 1, 3, 2, 3),
    Sketcher.Constraint("Vertical", 0, 3, 3, 3),
    Sketcher.Constraint("Vertical", 3, 3, 5, 2),
    Sketcher.Constraint("Vertical", 4, 2, 7, 2),
    Sketcher.Constraint("Vertical", 2, 3, 9, 2),
    Sketcher.Constraint("Vertical", 8, 2, 11, 2),
    Sketcher.Constraint("Equal", 8, 6),
    Sketcher.Constraint("Diameter", 0, Q("3.2 mm")),
    Sketcher.Constraint("DistanceX", 4, 2, 4, 1, Q("4 mm")),
    Sketcher.Constraint("DistanceX", 0, 3, 1, 3, Q("12 mm")),
    Sketcher.Constraint("DistanceY", 1, 3, 2, 3, Q("14 mm")),
    Sketcher.Constraint("DistanceY", 4, 2, 3, 3, Q("1 mm")),
    Sketcher.Constraint("DistanceX", -1, 1, 0, 3, Q("159.4453 mm")),
    Sketcher.Constraint("DistanceY", -1, 1, 0, 3, Q("143.4853 mm")),
])
pocket5 = body.newObject("PartDesign::Pocket", "Pocket004")
pocket5.Profile = sketch6
pocket5.Type = "ThroughAll"

# Sketch on XY plane
sketch7 = body.newObject("Sketcher::SketchObject", "Sketch006")
sketch7.AttachmentSupport = (doc.getObject("XY_Plane"), [""])
sketch7.MapMode = "FlatFace"
sketch7.AttachmentOffset = App.Placement(V(0, 0, 6.5), App.Rotation())
add_polygon(sketch7, [(50.9453, 35), (50.9453, 20), (216.9453, 20), (216.9453, 35), (170.4453, 81.5), (97.4453, 81.5)])  # lines 0-5
add_polygon(sketch7, [(216.9453, 204), (50.9453, 204), (50.9453, 189), (97.4453, 142.5), (151.4453, 142.5), (151.4453, 164.4853), (192.4305, 164.4853), (216.9453, 189)])  # lines 6-13
add_polygon(sketch7, [(85.9453, 125.7157), (40.9453, 170.7157), (40.9453, 53.2843), (85.9453, 98.2843)])  # lines 14-17
add_polygon(sketch7, [(226.9453, 53.2843), (226.9453, 170.7157), (181.9453, 125.7157), (181.9453, 98.2843)])  # lines 18-21
sketch7.addConstraint([
    Sketcher.Constraint("Vertical", 0),
    Sketcher.Constraint("Horizontal", 1),
    Sketcher.Constraint("Vertical", 2),
    Sketcher.Constraint("Horizontal", 4),
    Sketcher.Constraint("Horizontal", 6),
    Sketcher.Constraint("Vertical", 7),
    Sketcher.Constraint("Horizontal", 9),
    Sketcher.Constraint("Vertical", 10),
    Sketcher.Constraint("Horizontal", 11),
    Sketcher.Constraint("Vertical", 13),
    Sketcher.Constraint("Vertical", 15),
    Sketcher.Constraint("Vertical", 17),
    Sketcher.Constraint("Vertical", 18),
    Sketcher.Constraint("Vertical", 20),
    Sketcher.Constraint("Perpendicular", 3, 5),
    Sketcher.Constraint("Perpendicular", 5, 8),
    Sketcher.Constraint("Perpendicular", 8, 12),
    Sketcher.Constraint("Perpendicular", 12, 14),
    Sketcher.Constraint("Perpendicular", 14, 16),
    Sketcher.Constraint("Parallel", 16, 19),
    Sketcher.Constraint("Perpendicular", 19, 21),
    Sketcher.Constraint("Horizontal", 2, 2, 5, 2),
    Sketcher.Constraint("Horizontal", 7, 2, 12, 2),
    Sketcher.Constraint("Horizontal", 14, 2, 18, 2),
    Sketcher.Constraint("Horizontal", 17, 2, 19, 2),
    Sketcher.Constraint("Horizontal", 16, 2, 20, 2),
    Sketcher.Constraint("Horizontal", 15, 2, 21, 2),
    Sketcher.Constraint("Vertical", 5, 2, 6, 2),
    Sketcher.Constraint("Vertical", 4, 2, 8, 2),
    Sketcher.Constraint("Vertical", 2, 2, 12, 2),
    Sketcher.Constraint("Equal", 2, 7),
    Sketcher.Constraint("DistanceY", 0, 2, 0, 1, Q("15 mm")),
    Sketcher.Constraint("DistanceY", -1, 1, 0, 2, Q("20 mm")),
    Sketcher.Constraint("DistanceX", 15, 2, 16, 2, Q("45 mm")),
    Sketcher.Constraint("DistanceX", 1, 1, 1, 2, Q("166 mm")),
    Sketcher.Constraint("DistanceX", 4, 2, 4, 1, Q("73 mm")),
    Sketcher.Constraint("DistanceX", 9, 1, 9, 2, Q("54 mm")),
    Sketcher.Constraint("DistanceY", -1, 1, 6, 2, Q("204 mm")),
    Sketcher.Constraint("DistanceX", 14, 2, 7, 2, Q("10 mm")),
    Sketcher.Constraint("DistanceX", 12, 2, 18, 2, Q("10 mm")),
    Sketcher.Constraint("Distance", 12, Q("34.669 mm")),
    Sketcher.Constraint("DistanceY", 15, 2, 15, 1, Q("117.4314 mm")),
    Sketcher.Constraint("DistanceY", 20, 2, 11, 2, Q("66.201 mm")),
    Sketcher.Constraint("DistanceX", -1, 1, 0, 2, Q("50.9453 mm")),
])
pocket6 = body.newObject("PartDesign::Pocket", "Pocket005")
pocket6.Profile = sketch7
pocket6.Type = "ThroughAll"
doc.recompute()

chamfer2 = body.newObject("PartDesign::Chamfer", "Chamfer001")
chamfer2.Base = (pocket6, edges_at(pocket6, [
    (50.945, 20, 3.25),
    (216.945, 20, 3.25),
    (151.445, 164.485, 3.25),
    (151.445, 142.5, 3.25),
    (216.945, 204, 3.25),
    (50.945, 204, 3.25),
    (40.945, 53.284, 3.25),
    (40.945, 170.716, 3.25),
    (226.945, 170.716, 3.25),
    (226.945, 53.284, 3.25),
]))
chamfer2.Size = 4

# Sketch on XY plane
sketch8 = body.newObject("Sketcher::SketchObject", "Sketch007")
sketch8.AttachmentSupport = (doc.getObject("XY_Plane"), [""])
sketch8.MapMode = "FlatFace"
sketch8.AttachmentOffset = App.Placement(V(0, 0, 6.5), App.Rotation())
sketch8.addGeometry(Part.Circle(V(108.9453, 12, 0), V(0, 0, 1), 2.25), False)
sketch8.addConstraint([
    Sketcher.Constraint("Diameter", 0, Q("4.5 mm")),
    Sketcher.Constraint("DistanceY", -1, 1, 0, 3, Q("12 mm")),
    Sketcher.Constraint("DistanceX", -1, 1, 0, 3, Q("108.9453 mm")),
])
pocket7 = body.newObject("PartDesign::Pocket", "Pocket006")
pocket7.Profile = sketch8
pocket7.Type = "ThroughAll"

# Sketch on XY plane
sketch9 = body.newObject("Sketcher::SketchObject", "Sketch008")
sketch9.AttachmentSupport = (doc.getObject("XY_Plane"), [""])
sketch9.MapMode = "FlatFace"
sketch9.AttachmentOffset = App.Placement(V(0, 0, 6.5), App.Rotation())
sketch9.addGeometry([
    Part.Circle(V(125.9453, 2, 0), V(0, 0, 1), 1.5),
    Part.Circle(V(141.9453, 2, 0), V(0, 0, 1), 1.5),
], False)
sketch9.addConstraint([
    Sketcher.Constraint("Equal", 0, 1),
    Sketcher.Constraint("Horizontal", 0, 3, 1, 3),
    Sketcher.Constraint("Diameter", 0, Q("3 mm")),
    Sketcher.Constraint("DistanceY", -1, 1, 0, 3, Q("2 mm")),
    Sketcher.Constraint("DistanceX", 0, 3, 1, 3, Q("16 mm")),
    Sketcher.Constraint("DistanceX", -1, 1, 0, 3, Q("125.9453 mm")),
])
pad2 = body.newObject("PartDesign::Pad", "Pad001")
pad2.Profile = sketch9
pad2.Length = 6.5
pad2.Reversed = True

doc.recompute()
